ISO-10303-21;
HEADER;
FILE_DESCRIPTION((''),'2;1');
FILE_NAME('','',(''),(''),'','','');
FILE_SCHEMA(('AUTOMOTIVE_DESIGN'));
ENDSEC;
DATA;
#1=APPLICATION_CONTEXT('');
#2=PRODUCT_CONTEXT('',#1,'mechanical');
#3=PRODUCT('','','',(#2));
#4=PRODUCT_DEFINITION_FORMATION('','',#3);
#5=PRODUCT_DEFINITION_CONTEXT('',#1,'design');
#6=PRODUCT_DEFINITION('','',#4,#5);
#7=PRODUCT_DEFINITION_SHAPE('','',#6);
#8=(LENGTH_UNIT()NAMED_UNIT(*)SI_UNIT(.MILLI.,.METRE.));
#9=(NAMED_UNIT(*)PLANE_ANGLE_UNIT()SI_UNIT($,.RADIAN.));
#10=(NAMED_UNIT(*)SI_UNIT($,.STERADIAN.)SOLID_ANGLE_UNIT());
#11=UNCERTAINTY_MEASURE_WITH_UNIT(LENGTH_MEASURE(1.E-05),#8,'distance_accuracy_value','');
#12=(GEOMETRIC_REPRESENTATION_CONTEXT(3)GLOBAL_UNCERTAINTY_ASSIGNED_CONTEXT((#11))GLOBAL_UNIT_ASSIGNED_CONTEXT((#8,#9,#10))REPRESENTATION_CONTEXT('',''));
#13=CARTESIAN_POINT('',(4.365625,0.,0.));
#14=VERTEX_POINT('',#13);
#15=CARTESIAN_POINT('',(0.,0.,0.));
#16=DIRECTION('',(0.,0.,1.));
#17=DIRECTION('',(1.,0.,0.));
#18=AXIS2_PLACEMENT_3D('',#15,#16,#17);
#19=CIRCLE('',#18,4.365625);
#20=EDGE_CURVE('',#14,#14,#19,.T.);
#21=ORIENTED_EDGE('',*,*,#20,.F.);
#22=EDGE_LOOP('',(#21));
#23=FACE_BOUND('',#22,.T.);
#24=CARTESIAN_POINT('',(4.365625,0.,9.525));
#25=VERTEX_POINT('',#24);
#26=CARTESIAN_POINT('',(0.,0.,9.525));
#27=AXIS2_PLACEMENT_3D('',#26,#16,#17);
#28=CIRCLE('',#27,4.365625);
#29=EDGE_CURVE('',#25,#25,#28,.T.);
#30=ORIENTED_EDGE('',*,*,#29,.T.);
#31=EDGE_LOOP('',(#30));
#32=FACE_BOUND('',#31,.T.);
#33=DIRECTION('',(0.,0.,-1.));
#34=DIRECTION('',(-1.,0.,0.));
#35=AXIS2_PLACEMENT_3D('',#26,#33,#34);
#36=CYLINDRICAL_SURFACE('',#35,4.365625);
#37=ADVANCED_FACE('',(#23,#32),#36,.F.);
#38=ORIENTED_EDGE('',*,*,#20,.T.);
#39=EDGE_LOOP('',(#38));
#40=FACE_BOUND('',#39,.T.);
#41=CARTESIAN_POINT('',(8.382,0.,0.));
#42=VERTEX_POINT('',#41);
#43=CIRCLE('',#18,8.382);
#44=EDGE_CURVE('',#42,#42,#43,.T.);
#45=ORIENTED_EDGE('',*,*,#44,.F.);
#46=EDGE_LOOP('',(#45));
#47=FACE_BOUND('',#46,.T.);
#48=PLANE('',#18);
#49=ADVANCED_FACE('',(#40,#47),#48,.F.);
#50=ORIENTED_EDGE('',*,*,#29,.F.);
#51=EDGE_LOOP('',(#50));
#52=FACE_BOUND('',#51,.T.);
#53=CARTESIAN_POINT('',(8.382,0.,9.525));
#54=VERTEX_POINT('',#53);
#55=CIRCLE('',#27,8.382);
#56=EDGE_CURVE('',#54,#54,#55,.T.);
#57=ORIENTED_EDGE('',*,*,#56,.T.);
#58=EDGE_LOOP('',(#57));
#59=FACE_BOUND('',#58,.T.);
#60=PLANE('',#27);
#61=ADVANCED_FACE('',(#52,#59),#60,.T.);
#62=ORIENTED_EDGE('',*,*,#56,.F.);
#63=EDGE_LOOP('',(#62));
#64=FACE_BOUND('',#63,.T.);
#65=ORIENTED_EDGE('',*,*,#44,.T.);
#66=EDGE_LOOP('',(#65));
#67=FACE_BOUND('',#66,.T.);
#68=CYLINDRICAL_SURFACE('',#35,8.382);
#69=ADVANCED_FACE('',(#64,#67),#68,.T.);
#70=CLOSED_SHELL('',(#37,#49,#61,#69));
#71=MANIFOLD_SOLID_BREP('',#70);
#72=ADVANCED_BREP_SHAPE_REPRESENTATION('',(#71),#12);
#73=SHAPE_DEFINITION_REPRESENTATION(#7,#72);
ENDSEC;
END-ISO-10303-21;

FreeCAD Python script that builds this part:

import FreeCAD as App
import Part
import Sketcher

V = App.Vector
Q = App.Units.Quantity

doc = App.newDocument("Part")
body = doc.addObject("PartDesign::Body", "Body")

sketch1 = body.newObject("Sketcher::SketchObject", "Sketch")
sketch1.AttachmentSupport = (doc.getObject("XY_Plane"), [""])
sketch1.MapMode = "FlatFace"
sketch1.addGeometry([
    Part.Circle(V(0, 0, 0), V(0, 0, 1), 8.4),
    Part.Circle(V(0, 0, 0), V(0, 0, 1), 4.4),
], False)
sketch1.addConstraint([
    Sketcher.Constraint("Coincident", 0, 3, -1, 1),
    Sketcher.Constraint("Coincident", 1, 3, -1, 1),
    Sketcher.Constraint("Diameter", 0, Q("0.66 in")),
    Sketcher.Constraint("Diameter", 1, Q("0.34375 in")),
])
pad1 = body.newObject("PartDesign::Pad", "Pad")
pad1.Profile = sketch1
pad1.Length = Q("0.375 in")

doc.recompute()
